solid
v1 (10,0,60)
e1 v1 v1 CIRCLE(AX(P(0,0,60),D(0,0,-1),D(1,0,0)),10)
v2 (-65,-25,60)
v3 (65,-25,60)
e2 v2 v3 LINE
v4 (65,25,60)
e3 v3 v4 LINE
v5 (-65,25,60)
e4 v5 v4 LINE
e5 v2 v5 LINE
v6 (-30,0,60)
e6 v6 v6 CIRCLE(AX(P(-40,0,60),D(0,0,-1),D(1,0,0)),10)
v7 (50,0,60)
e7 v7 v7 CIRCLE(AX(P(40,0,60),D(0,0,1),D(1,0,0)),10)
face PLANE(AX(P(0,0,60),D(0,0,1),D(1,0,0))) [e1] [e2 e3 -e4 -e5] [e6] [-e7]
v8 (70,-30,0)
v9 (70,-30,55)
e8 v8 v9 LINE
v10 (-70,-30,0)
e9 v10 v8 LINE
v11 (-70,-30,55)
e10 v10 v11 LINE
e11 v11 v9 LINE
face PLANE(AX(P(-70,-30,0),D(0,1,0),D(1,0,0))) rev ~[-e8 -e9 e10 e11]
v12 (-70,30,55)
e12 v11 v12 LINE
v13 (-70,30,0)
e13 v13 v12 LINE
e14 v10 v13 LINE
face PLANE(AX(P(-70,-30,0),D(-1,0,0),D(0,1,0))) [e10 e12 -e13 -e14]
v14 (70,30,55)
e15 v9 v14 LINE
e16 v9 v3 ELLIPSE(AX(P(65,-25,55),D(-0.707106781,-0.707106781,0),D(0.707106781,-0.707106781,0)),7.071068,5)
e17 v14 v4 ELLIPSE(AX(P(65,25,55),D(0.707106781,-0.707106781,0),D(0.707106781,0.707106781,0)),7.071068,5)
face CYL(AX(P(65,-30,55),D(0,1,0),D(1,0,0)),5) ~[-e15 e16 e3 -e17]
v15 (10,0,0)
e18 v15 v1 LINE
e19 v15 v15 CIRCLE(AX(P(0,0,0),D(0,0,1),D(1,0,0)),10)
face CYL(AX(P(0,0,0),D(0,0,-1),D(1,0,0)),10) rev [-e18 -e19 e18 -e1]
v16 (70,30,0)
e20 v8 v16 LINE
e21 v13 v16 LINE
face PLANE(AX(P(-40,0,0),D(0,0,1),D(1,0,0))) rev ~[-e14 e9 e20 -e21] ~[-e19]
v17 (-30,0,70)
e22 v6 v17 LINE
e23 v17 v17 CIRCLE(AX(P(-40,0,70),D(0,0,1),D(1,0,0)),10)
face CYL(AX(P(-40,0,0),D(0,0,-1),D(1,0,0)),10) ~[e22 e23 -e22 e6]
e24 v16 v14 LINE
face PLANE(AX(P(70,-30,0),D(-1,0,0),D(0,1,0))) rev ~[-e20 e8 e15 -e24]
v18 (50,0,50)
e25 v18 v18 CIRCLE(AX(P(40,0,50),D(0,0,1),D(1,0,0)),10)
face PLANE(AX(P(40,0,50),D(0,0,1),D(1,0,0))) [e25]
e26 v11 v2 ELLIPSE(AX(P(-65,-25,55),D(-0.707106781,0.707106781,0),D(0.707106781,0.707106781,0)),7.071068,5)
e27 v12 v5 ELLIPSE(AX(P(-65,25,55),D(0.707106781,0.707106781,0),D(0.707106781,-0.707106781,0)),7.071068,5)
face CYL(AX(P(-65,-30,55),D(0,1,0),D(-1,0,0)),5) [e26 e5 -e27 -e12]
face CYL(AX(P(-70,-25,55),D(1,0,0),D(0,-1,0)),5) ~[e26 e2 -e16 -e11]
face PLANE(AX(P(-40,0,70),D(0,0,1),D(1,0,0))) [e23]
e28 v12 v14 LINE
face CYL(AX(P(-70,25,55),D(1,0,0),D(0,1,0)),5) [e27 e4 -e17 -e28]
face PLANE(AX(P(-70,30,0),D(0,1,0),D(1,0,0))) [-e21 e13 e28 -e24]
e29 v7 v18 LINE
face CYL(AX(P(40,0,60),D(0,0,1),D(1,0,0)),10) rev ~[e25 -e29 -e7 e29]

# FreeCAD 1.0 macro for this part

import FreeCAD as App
import Part
import Sketcher

V = App.Vector


def edges_at(feature, points):
    """Names of the edges that pass closest to the given points."""
    edges = feature.Shape.Edges
    near = lambda p: min(range(len(edges)), key=lambda i: edges[i].distToShape(Part.Vertex(*p))[0])
    return sorted({f"Edge{near(p) + 1}" for p in points})


def add_polygon(sketch, points):
    """Adds a closed chain of lines whose ends are joined by coincident constraints."""
    first, n = sketch.GeometryCount, len(points)
    for a, b in zip(points, points[1:] + points[:1]):
        sketch.addGeometry(Part.LineSegment(App.Vector(*a, 0), App.Vector(*b, 0)), False)
    for i in range(n):
        sketch.addConstraint(Sketcher.Constraint("Coincident", first + i, 2, first + (i + 1) % n, 1))

doc = App.newDocument("Part")
body = doc.addObject("PartDesign::Body", "Body")

# Sketch on XY plane
sketch1 = doc.addObject("Sketcher::SketchObject", "Sketch")
body.addObject(sketch1)
sketch1.AttachmentSupport = (doc.XY_Plane, [""])
sketch1.MapMode = "FlatFace"
add_polygon(sketch1, [(-70, 30), (-70, -30), (70, -30), (70, 30)])  # lines 0-3
sketch1.addConstraint([
    Sketcher.Constraint("Vertical", 0),
    Sketcher.Constraint("Horizontal", 1),
    Sketcher.Constraint("Vertical", 2),
    Sketcher.Constraint("Horizontal", 3),
    Sketcher.Constraint("Symmetric", 0, 2, 2, 2, -1, 1),
    Sketcher.Constraint("DistanceX", 1, 1, 1, 2, 140.0),
    Sketcher.Constraint("DistanceY", 0, 2, 0, 1, 60.0),
])
pad1 = doc.addObject("PartDesign::Pad", "Pad")
body.addObject(pad1)
pad1.Profile = sketch1
pad1.Length = 60

# Sketch on XY plane
sketch2 = doc.addObject("Sketcher::SketchObject", "Sketch001")
body.addObject(sketch2)
sketch2.AttachmentSupport = (doc.XY_Plane, [""])
sketch2.MapMode = "FlatFace"
sketch2.addGeometry(Part.Circle(V(-40, 0, 0), V(0, 0, 1), 10), False)
sketch2.addConstraint([
    Sketcher.Constraint("PointOnObject", 0, 3, -1),
    Sketcher.Constraint("Diameter", 0, 20.0),
    Sketcher.Constraint("DistanceX", 0, 3, -1, 1, 40.0),
])
pad2 = doc.addObject("PartDesign::Pad", "Pad001")
body.addObject(pad2)
pad2.Profile = sketch2
pad2.Length = 70

# Sketch on XY plane
sketch3 = doc.addObject("Sketcher::SketchObject", "Sketch002")
body.addObject(sketch3)
sketch3.AttachmentSupport = (doc.XY_Plane, [""])
sketch3.MapMode = "FlatFace"
sketch3.addGeometry(Part.Circle(V(0, 0, 0), V(0, 0, 1), 10), False)
sketch3.addConstraint([
    Sketcher.Constraint("Coincident", 0, 3, -1, 1),
    Sketcher.Constraint("Diameter", 0, 20.0),
])
pocket1 = doc.addObject("PartDesign::Pocket", "Pocket")
body.addObject(pocket1)
pocket1.Profile = sketch3
pocket1.Length = 120.3
pocket1.Reversed = True

# Sketch on XY plane
sketch4 = doc.addObject("Sketcher::SketchObject", "Sketch003")
body.addObject(sketch4)
sketch4.AttachmentSupport = (doc.XY_Plane, [""])
sketch4.MapMode = "FlatFace"
sketch4.AttachmentOffset = App.Placement(V(0, 0, 60), App.Rotation())
sketch4.addGeometry(Part.Circle(V(40, 0, 0), V(0, 0, 1), 10), False)
sketch4.addConstraint([
    Sketcher.Constraint("PointOnObject", 0, 3, -1),
    Sketcher.Constraint("Diameter", 0, 20.0),
    Sketcher.Constraint("DistanceX", -1, 1, 0, 3, 40.0),
])
pocket2 = doc.addObject("PartDesign::Pocket", "Pocket001")
body.addObject(pocket2)
pocket2.Profile = sketch4
pocket2.Length = 10
doc.recompute()

fillet = doc.addObject("PartDesign::Fillet", "Fillet")
body.addObject(fillet)
fillet.Base = (pocket2, edges_at(pocket2, [
    (0, 30, 60),
    (-70, 0, 60),
    (0, -30, 60),
    (70, 0, 60),
]))
fillet.Radius = 5

doc.recompute()
